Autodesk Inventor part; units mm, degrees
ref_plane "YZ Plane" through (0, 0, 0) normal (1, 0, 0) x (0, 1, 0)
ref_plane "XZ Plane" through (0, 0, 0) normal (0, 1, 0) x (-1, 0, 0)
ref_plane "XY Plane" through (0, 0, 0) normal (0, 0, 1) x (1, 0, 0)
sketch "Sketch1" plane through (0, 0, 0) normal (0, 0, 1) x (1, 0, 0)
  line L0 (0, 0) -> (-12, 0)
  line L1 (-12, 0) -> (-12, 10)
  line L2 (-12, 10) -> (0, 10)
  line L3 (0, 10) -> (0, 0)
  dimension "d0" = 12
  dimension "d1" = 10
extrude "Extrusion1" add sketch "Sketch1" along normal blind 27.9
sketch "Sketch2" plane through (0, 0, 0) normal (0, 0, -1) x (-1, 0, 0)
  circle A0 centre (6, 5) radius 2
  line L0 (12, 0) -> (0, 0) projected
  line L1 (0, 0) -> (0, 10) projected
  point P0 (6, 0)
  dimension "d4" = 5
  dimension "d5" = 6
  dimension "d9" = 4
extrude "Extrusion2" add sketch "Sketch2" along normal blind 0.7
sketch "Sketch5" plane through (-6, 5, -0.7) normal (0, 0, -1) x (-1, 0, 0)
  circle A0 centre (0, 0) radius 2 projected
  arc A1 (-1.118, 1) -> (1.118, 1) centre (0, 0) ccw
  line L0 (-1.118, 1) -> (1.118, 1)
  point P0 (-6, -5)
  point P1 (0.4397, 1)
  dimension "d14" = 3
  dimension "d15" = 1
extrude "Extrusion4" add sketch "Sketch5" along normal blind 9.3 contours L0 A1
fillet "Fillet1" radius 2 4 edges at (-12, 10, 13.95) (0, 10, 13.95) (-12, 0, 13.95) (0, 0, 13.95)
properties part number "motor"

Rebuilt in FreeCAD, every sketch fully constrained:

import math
import FreeCAD as App
import Part
import Sketcher


def edges_at(feature, points):
    """Names of the edges that pass closest to the given points."""
    edges = feature.Shape.Edges
    near = lambda p: min(range(len(edges)), key=lambda i: edges[i].distToShape(Part.Vertex(*p))[0])
    return sorted({f"Edge{near(p) + 1}" for p in points})


def add_polygon(sketch, points):
    """Adds a closed chain of lines whose ends are joined by coincident constraints."""
    first, n = sketch.GeometryCount, len(points)
    for a, b in zip(points, points[1:] + points[:1]):
        sketch.addGeometry(Part.LineSegment(App.Vector(*a, 0), App.Vector(*b, 0)), False)
    for i in range(n):
        sketch.addConstraint(Sketcher.Constraint("Coincident", first + i, 2, first + (i + 1) % n, 1))

doc = App.newDocument("Part")
body = doc.addObject("PartDesign::Body", "Body")

# Sketch on XY plane
sketch1 = body.newObject("Sketcher::SketchObject", "Sketch")
sketch1.AttachmentSupport = (doc.getObject("XY_Plane"), [""])
sketch1.MapMode = "FlatFace"
add_polygon(sketch1, [(-12, 0), (0, 0), (0, 10), (-12, 10)])  # lines 0-3
sketch1.addConstraint(Sketcher.Constraint("Horizontal", 0))
sketch1.addConstraint(Sketcher.Constraint("Vertical", 1))
sketch1.addConstraint(Sketcher.Constraint("Horizontal", 2))
sketch1.addConstraint(Sketcher.Constraint("Vertical", 3))
sketch1.addConstraint(Sketcher.Constraint("Coincident", 0, 2, -1, 1))
sketch1.addConstraint(Sketcher.Constraint("DistanceX", 0, 1, 0, 2, 12.0))
sketch1.addConstraint(Sketcher.Constraint("DistanceY", 1, 1, 1, 2, 10.0))
pad1 = body.newObject("PartDesign::Pad", "Pad")
pad1.Profile = sketch1
pad1.Length = 27.9

# Sketch on XY plane
sketch2 = body.newObject("Sketcher::SketchObject", "Sketch001")
sketch2.AttachmentSupport = (doc.getObject("XY_Plane"), [""])
sketch2.MapMode = "FlatFace"
sketch2.addGeometry(Part.Circle(App.Vector(-6, 5, 0), App.Vector(0, 0, 1), 2), False)
sketch2.addConstraint(Sketcher.Constraint("Diameter", 0, 4.0))
sketch2.addConstraint(Sketcher.Constraint("DistanceX", 0, 3, -1, 1, 6.0))
sketch2.addConstraint(Sketcher.Constraint("DistanceY", -1, 1, 0, 3, 5.0))
pad2 = body.newObject("PartDesign::Pad", "Pad001")
pad2.Profile = sketch2
pad2.Length = 0.7
pad2.Reversed = True

# Sketch on XY plane
sketch3 = body.newObject("Sketcher::SketchObject", "Sketch002")
sketch3.AttachmentSupport = (doc.getObject("XY_Plane"), [""])
sketch3.MapMode = "FlatFace"
sketch3.AttachmentOffset = App.Placement(App.Vector(0, 0, -0.7), App.Rotation())
sketch3.addGeometry(Part.LineSegment(App.Vector(-7.118, 6, 0), App.Vector(-4.882, 6, 0)), False)
sketch3.addGeometry(Part.ArcOfCircle(Part.Circle(App.Vector(-6, 5, 0), App.Vector(0, 0, 1), 1.499975), math.radians(138.18882), math.radians(401.81118)), False)
sketch3.addConstraint(Sketcher.Constraint("Coincident", 0, 1, 1, 1))
sketch3.addConstraint(Sketcher.Constraint("Coincident", 1, 2, 0, 2))
sketch3.addConstraint(Sketcher.Constraint("Horizontal", 0))
sketch3.addConstraint(Sketcher.Constraint("Radius", 1, 1.5))
sketch3.addConstraint(Sketcher.Constraint("DistanceY", 1, 3, 0, 1, 1.0))
sketch3.addConstraint(Sketcher.Constraint("DistanceX", 1, 3, -1, 1, 6.0))
sketch3.addConstraint(Sketcher.Constraint("DistanceY", -1, 1, 1, 3, 5.0))
pad3 = body.newObject("PartDesign::Pad", "Pad002")
pad3.Profile = sketch3
pad3.Length = 9.3
pad3.Reversed = True
doc.recompute()

fillet = body.newObject("PartDesign::Fillet", "Fillet")
fillet.Base = (pad3, edges_at(pad3, [
    (-12, 10, 13.95),
    (0, 10, 13.95),
    (-12, 0, 13.95),
    (0, 0, 13.95),
]))
fillet.Radius = 2

doc.recompute()
